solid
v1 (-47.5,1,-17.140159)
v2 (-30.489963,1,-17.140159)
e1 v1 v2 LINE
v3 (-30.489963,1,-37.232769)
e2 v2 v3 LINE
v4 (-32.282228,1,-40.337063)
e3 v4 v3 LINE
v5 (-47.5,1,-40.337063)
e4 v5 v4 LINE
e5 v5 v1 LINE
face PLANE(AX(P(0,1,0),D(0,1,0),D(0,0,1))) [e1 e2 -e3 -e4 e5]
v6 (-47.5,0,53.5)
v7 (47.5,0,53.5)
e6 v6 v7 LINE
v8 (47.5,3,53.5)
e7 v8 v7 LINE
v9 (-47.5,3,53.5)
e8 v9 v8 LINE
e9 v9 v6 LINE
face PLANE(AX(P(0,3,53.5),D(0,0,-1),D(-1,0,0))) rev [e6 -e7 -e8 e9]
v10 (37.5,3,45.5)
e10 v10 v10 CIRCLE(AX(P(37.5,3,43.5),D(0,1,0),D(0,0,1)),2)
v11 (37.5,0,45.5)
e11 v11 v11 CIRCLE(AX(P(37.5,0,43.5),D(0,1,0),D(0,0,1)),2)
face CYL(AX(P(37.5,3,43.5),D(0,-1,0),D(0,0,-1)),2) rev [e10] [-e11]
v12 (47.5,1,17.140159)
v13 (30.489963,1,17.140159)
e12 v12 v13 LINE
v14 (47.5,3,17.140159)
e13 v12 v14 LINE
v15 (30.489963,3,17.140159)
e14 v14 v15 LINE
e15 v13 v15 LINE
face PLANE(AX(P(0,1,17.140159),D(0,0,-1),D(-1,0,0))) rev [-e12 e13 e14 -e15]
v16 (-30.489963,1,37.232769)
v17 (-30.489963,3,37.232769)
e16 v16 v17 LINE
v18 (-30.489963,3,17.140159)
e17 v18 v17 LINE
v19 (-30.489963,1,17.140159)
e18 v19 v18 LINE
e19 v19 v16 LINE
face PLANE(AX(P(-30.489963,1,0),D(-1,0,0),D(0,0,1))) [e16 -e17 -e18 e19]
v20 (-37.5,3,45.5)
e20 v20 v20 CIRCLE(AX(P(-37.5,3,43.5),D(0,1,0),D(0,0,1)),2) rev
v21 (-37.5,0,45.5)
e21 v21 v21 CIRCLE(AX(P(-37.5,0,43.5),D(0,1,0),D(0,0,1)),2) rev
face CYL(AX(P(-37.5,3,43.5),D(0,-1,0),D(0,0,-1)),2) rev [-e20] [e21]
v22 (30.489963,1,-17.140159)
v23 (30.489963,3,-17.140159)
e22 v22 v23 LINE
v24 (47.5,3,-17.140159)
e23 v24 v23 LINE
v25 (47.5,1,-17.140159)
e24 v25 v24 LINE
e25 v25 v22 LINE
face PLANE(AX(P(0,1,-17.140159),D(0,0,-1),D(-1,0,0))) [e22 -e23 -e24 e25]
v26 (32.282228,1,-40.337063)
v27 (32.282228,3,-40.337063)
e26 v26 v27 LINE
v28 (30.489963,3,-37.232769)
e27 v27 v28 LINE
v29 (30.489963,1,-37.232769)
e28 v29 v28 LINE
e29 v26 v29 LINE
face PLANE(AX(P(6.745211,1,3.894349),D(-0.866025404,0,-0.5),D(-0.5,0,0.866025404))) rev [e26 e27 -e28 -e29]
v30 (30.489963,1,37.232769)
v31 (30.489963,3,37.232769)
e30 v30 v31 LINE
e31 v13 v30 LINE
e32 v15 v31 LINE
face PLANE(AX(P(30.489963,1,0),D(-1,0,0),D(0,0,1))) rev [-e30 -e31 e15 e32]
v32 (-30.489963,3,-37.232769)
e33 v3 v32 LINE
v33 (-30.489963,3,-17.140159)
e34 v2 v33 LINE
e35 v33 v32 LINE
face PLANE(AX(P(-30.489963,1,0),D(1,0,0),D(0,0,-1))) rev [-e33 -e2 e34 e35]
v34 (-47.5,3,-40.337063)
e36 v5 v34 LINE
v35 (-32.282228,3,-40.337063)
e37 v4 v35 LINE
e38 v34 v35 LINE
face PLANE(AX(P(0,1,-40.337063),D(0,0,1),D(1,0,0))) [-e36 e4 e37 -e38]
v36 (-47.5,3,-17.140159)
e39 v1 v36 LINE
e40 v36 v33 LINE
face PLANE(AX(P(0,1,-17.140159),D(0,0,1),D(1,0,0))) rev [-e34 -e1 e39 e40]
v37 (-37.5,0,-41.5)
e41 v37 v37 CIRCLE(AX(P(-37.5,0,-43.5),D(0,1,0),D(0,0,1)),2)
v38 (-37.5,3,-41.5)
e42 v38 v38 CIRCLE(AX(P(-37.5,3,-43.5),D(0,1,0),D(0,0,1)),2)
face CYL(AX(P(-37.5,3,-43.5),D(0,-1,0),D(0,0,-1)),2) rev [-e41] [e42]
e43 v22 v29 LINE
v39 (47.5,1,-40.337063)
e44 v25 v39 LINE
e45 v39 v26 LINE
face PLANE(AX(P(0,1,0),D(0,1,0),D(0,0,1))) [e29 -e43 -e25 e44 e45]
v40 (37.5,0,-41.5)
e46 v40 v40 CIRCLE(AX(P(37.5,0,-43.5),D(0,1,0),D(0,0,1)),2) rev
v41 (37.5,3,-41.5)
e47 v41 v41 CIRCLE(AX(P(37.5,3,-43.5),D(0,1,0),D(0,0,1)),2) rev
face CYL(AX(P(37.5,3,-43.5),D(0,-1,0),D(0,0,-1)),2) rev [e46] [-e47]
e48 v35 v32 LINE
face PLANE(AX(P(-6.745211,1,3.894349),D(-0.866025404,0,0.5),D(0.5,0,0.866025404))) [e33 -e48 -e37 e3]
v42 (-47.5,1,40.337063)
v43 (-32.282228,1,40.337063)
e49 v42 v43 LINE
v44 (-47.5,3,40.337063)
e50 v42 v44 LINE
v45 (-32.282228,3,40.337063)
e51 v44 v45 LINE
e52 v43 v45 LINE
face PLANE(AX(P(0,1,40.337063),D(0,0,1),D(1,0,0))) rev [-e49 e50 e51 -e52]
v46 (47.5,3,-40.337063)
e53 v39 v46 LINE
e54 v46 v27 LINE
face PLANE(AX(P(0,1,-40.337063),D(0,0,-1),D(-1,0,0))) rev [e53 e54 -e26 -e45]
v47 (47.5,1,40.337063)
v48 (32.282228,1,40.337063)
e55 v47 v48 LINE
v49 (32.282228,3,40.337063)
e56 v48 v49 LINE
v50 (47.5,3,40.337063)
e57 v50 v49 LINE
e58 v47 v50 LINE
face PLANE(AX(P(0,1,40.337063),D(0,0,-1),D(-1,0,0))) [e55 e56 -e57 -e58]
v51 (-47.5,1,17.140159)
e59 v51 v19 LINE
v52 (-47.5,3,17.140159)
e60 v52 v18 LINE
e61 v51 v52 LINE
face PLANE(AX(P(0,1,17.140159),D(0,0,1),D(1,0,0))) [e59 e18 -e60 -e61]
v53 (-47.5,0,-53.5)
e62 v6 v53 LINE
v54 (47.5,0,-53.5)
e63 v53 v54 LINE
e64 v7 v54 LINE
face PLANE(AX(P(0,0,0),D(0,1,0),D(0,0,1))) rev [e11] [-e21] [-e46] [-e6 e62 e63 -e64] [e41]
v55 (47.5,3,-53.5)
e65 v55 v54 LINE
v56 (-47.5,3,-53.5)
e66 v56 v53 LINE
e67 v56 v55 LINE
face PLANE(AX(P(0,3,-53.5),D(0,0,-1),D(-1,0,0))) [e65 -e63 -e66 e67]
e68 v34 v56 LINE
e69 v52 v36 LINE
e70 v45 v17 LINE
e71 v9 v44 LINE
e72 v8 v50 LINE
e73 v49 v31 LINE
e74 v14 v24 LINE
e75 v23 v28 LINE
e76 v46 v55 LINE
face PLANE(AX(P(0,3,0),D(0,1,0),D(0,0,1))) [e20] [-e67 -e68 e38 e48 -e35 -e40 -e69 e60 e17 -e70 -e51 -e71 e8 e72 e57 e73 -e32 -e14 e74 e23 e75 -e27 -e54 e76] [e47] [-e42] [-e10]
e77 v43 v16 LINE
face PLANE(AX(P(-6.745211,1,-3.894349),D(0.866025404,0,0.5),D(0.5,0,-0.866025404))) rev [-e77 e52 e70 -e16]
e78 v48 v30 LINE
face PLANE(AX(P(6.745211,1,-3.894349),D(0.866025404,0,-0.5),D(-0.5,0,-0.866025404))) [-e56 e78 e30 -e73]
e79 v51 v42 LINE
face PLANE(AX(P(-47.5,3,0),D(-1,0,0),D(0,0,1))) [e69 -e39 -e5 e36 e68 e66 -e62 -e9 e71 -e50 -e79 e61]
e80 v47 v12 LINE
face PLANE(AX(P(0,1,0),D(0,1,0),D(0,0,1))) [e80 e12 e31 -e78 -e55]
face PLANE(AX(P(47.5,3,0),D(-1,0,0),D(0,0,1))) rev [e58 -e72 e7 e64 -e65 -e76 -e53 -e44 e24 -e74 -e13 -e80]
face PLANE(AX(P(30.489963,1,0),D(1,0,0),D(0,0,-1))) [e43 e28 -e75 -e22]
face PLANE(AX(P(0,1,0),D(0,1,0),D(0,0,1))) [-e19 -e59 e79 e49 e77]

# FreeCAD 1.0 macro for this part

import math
import FreeCAD as App
import Part
import Sketcher
Q = App.Units.Quantity


def add_polygon(sketch, points):
    """Adds a closed chain of lines whose ends are joined by coincident constraints."""
    first, n = sketch.GeometryCount, len(points)
    for a, b in zip(points, points[1:] + points[:1]):
        sketch.addGeometry(Part.LineSegment(App.Vector(*a, 0), App.Vector(*b, 0)), False)
    for i in range(n):
        sketch.addConstraint(Sketcher.Constraint("Coincident", first + i, 2, first + (i + 1) % n, 1))

doc = App.newDocument("Part")
params = doc.addObject("Spreadsheet::Sheet", "Params")
for row, (alias, value) in enumerate([
    ("sketch1_diameter", "4 mm"),
    ("sketch1_width", "95 mm"),
    ("sketch1_height", "107 mm"),
    ("pad1_length", "3 mm"),
    ("pocket1_length", "2 mm"),
], start=1):
    params.set(f"A{row}", alias)
    params.set(f"B{row}", "=" + value)
    params.setAlias(f"B{row}", alias)

body = doc.addObject("PartDesign::Body", "Body")

sketch1 = body.newObject("Sketcher::SketchObject", "Sketch")
sketch1.AttachmentSupport = (doc.getObject("XZ_Plane"), [""])
sketch1.MapMode = "FlatFace"
add_polygon(sketch1, [(-47.5, 53.5), (47.5, 53.5), (47.5, -53.5), (-47.5, -53.5)])
sketch1.addGeometry(Part.ArcOfCircle(Part.Circle(App.Vector(37.5, 43.5, 0), App.Vector(0, 0, 1), 2), math.radians(90), math.radians(360)), False)
sketch1.addGeometry(Part.ArcOfCircle(Part.Circle(App.Vector(37.5, 43.5, 0), App.Vector(0, 0, 1), 2), math.radians(0), math.radians(90)), False)
sketch1.addGeometry(Part.Circle(App.Vector(-37.5, 43.5, 0), App.Vector(0, 0, 1), 2), False)
sketch1.addGeometry(Part.Circle(App.Vector(-37.5, -43.5, 0), App.Vector(0, 0, 1), 2), False)
sketch1.addGeometry(Part.Circle(App.Vector(37.5, -43.5, 0), App.Vector(0, 0, 1), 2), False)
sketch1.addConstraint(Sketcher.Constraint("Tangent", 4, 1, 5, 2))
sketch1.addConstraint(Sketcher.Constraint("Coincident", 5, 1, 4, 2))
sketch1.addConstraint(Sketcher.Constraint("Horizontal", 0))
sketch1.addConstraint(Sketcher.Constraint("Vertical", 1))
sketch1.addConstraint(Sketcher.Constraint("Horizontal", 2))
sketch1.addConstraint(Sketcher.Constraint("Vertical", 3))
sketch1.addConstraint(Sketcher.Constraint("Equal", 5, 6))
sketch1.addConstraint(Sketcher.Constraint("Equal", 6, 7))
sketch1.addConstraint(Sketcher.Constraint("Equal", 7, 8))
sketch1.addConstraint(Sketcher.Constraint("Symmetric", 4, 3, 7, 3, -1, 1))
sketch1.addConstraint(Sketcher.Constraint("Symmetric", 6, 3, 8, 3, -1, 1))
sketch1.addConstraint(Sketcher.Constraint("Symmetric", 0, 2, 2, 2, -1, 1))
sketch1.addConstraint(Sketcher.Constraint("Symmetric", 4, 3, 6, 3, -2))
sketch1.addConstraint(Sketcher.Constraint("Horizontal", 6, 3, 5, 1))
sketch1.addConstraint(Sketcher.Constraint("Vertical", 8, 3, 4, 1))
sketch1.addConstraint(Sketcher.Constraint("Diameter", 6, 4.0))
sketch1.addConstraint(Sketcher.Constraint("DistanceX", 0, 1, 0, 2, 95.0))
sketch1.addConstraint(Sketcher.Constraint("DistanceY", 1, 2, 1, 1, 107.0))
sketch1.addConstraint(Sketcher.Constraint("DistanceX", 6, 3, 5, 3, 75.0))
sketch1.addConstraint(Sketcher.Constraint("DistanceY", 7, 3, 6, 3, 87.0))
sketch1.setExpression("Constraints[19]", "Params.sketch1_diameter")
sketch1.setExpression("Constraints[20]", "Params.sketch1_width")
sketch1.setExpression("Constraints[21]", "Params.sketch1_height")
pad1 = body.newObject("PartDesign::Pad", "Pad")
pad1.Profile = sketch1
pad1.setExpression("Length", "Params.pad1_length")
pad1.Reversed = True

sketch2 = body.newObject("Sketcher::SketchObject", "Sketch001")
sketch2.AttachmentSupport = (doc.getObject("XZ_Plane"), [""])
sketch2.MapMode = "FlatFace"
sketch2.AttachmentOffset = App.Placement(App.Vector(0, 0, -3), App.Rotation())
add_polygon(sketch2, [(-47.5, -17.1), (-30.5, -17.1), (-30.5, -37.2), (-32.3, -40.3), (-47.5, -40.3)])
add_polygon(sketch2, [(47.5, -40.3), (32.3, -40.3), (30.5, -37.2), (30.5, -17.1), (47.5, -17.1)])
add_polygon(sketch2, [(47.5, 17.1), (30.5, 17.1), (30.5, 37.2), (32.3, 40.3), (47.5, 40.3)])
add_polygon(sketch2, [(-30.5, 17.1), (-47.5, 17.1), (-47.5, 40.3), (-32.3, 40.3), (-30.5, 37.2)])
sketch2.addConstraint(Sketcher.Constraint("Horizontal", 0))
sketch2.addConstraint(Sketcher.Constraint("Vertical", 1))
sketch2.addConstraint(Sketcher.Constraint("Horizontal", 3))
sketch2.addConstraint(Sketcher.Constraint("Vertical", 4))
sketch2.addConstraint(Sketcher.Constraint("Horizontal", 5))
sketch2.addConstraint(Sketcher.Constraint("Vertical", 7))
sketch2.addConstraint(Sketcher.Constraint("Horizontal", 8))
sketch2.addConstraint(Sketcher.Constraint("Vertical", 9))
sketch2.addConstraint(Sketcher.Constraint("Horizontal", 10))
sketch2.addConstraint(Sketcher.Constraint("Vertical", 11))
sketch2.addConstraint(Sketcher.Constraint("Horizontal", 13))
sketch2.addConstraint(Sketcher.Constraint("Vertical", 14))
sketch2.addConstraint(Sketcher.Constraint("Horizontal", 15))
sketch2.addConstraint(Sketcher.Constraint("Vertical", 16))
sketch2.addConstraint(Sketcher.Constraint("Horizontal", 17))
sketch2.addConstraint(Sketcher.Constraint("Vertical", 19))
sketch2.addConstraint(Sketcher.Constraint("Symmetric", 0, 2, 10, 2, -1, 1))
sketch2.addConstraint(Sketcher.Constraint("Symmetric", 2, 2, 12, 2, -1, 1))
sketch2.addConstraint(Sketcher.Constraint("Symmetric", 8, 2, 15, 2, -1, 1))
sketch2.addConstraint(Sketcher.Constraint("Symmetric", 5, 2, 17, 2, -1, 1))
sketch2.addConstraint(Sketcher.Constraint("Symmetric", 6, 2, 18, 2, -1, 1))
sketch2.addConstraint(Sketcher.Constraint("Symmetric", 2, 2, 5, 2, -2))
sketch2.addConstraint(Sketcher.Constraint("Symmetric", 1, 2, 6, 2, -2))
sketch2.addConstraint(Sketcher.Constraint("Symmetric", 4, 2, 8, 2, -2))
sketch2.addConstraint(Sketcher.Constraint("Parallel", 2, 12))
sketch2.addConstraint(Sketcher.Constraint("Vertical", 9, 2, 13, 2))
sketch2.addConstraint(Sketcher.Constraint("Angle", 2, Q("-120 deg")))
sketch2.addConstraint(Sketcher.Constraint("DistanceX", 3, 2, -1, 1, 47.5))
sketch2.addConstraint(Sketcher.Constraint("DistanceX", 3, 2, 3, 1, 15.217772))
sketch2.addConstraint(Sketcher.Constraint("DistanceY", 1, 2, 1, 1, 20.09261))
sketch2.addConstraint(Sketcher.Constraint("Distance", 2, 3.58453))
sketch2.addConstraint(Sketcher.Constraint("DistanceY", 0, 2, -1, 1, 17.140159))
pocket1 = body.newObject("PartDesign::Pocket", "Pocket")
pocket1.Profile = sketch2
pocket1.setExpression("Length", "Params.pocket1_length")
pocket1.Reversed = True

doc.recompute()
